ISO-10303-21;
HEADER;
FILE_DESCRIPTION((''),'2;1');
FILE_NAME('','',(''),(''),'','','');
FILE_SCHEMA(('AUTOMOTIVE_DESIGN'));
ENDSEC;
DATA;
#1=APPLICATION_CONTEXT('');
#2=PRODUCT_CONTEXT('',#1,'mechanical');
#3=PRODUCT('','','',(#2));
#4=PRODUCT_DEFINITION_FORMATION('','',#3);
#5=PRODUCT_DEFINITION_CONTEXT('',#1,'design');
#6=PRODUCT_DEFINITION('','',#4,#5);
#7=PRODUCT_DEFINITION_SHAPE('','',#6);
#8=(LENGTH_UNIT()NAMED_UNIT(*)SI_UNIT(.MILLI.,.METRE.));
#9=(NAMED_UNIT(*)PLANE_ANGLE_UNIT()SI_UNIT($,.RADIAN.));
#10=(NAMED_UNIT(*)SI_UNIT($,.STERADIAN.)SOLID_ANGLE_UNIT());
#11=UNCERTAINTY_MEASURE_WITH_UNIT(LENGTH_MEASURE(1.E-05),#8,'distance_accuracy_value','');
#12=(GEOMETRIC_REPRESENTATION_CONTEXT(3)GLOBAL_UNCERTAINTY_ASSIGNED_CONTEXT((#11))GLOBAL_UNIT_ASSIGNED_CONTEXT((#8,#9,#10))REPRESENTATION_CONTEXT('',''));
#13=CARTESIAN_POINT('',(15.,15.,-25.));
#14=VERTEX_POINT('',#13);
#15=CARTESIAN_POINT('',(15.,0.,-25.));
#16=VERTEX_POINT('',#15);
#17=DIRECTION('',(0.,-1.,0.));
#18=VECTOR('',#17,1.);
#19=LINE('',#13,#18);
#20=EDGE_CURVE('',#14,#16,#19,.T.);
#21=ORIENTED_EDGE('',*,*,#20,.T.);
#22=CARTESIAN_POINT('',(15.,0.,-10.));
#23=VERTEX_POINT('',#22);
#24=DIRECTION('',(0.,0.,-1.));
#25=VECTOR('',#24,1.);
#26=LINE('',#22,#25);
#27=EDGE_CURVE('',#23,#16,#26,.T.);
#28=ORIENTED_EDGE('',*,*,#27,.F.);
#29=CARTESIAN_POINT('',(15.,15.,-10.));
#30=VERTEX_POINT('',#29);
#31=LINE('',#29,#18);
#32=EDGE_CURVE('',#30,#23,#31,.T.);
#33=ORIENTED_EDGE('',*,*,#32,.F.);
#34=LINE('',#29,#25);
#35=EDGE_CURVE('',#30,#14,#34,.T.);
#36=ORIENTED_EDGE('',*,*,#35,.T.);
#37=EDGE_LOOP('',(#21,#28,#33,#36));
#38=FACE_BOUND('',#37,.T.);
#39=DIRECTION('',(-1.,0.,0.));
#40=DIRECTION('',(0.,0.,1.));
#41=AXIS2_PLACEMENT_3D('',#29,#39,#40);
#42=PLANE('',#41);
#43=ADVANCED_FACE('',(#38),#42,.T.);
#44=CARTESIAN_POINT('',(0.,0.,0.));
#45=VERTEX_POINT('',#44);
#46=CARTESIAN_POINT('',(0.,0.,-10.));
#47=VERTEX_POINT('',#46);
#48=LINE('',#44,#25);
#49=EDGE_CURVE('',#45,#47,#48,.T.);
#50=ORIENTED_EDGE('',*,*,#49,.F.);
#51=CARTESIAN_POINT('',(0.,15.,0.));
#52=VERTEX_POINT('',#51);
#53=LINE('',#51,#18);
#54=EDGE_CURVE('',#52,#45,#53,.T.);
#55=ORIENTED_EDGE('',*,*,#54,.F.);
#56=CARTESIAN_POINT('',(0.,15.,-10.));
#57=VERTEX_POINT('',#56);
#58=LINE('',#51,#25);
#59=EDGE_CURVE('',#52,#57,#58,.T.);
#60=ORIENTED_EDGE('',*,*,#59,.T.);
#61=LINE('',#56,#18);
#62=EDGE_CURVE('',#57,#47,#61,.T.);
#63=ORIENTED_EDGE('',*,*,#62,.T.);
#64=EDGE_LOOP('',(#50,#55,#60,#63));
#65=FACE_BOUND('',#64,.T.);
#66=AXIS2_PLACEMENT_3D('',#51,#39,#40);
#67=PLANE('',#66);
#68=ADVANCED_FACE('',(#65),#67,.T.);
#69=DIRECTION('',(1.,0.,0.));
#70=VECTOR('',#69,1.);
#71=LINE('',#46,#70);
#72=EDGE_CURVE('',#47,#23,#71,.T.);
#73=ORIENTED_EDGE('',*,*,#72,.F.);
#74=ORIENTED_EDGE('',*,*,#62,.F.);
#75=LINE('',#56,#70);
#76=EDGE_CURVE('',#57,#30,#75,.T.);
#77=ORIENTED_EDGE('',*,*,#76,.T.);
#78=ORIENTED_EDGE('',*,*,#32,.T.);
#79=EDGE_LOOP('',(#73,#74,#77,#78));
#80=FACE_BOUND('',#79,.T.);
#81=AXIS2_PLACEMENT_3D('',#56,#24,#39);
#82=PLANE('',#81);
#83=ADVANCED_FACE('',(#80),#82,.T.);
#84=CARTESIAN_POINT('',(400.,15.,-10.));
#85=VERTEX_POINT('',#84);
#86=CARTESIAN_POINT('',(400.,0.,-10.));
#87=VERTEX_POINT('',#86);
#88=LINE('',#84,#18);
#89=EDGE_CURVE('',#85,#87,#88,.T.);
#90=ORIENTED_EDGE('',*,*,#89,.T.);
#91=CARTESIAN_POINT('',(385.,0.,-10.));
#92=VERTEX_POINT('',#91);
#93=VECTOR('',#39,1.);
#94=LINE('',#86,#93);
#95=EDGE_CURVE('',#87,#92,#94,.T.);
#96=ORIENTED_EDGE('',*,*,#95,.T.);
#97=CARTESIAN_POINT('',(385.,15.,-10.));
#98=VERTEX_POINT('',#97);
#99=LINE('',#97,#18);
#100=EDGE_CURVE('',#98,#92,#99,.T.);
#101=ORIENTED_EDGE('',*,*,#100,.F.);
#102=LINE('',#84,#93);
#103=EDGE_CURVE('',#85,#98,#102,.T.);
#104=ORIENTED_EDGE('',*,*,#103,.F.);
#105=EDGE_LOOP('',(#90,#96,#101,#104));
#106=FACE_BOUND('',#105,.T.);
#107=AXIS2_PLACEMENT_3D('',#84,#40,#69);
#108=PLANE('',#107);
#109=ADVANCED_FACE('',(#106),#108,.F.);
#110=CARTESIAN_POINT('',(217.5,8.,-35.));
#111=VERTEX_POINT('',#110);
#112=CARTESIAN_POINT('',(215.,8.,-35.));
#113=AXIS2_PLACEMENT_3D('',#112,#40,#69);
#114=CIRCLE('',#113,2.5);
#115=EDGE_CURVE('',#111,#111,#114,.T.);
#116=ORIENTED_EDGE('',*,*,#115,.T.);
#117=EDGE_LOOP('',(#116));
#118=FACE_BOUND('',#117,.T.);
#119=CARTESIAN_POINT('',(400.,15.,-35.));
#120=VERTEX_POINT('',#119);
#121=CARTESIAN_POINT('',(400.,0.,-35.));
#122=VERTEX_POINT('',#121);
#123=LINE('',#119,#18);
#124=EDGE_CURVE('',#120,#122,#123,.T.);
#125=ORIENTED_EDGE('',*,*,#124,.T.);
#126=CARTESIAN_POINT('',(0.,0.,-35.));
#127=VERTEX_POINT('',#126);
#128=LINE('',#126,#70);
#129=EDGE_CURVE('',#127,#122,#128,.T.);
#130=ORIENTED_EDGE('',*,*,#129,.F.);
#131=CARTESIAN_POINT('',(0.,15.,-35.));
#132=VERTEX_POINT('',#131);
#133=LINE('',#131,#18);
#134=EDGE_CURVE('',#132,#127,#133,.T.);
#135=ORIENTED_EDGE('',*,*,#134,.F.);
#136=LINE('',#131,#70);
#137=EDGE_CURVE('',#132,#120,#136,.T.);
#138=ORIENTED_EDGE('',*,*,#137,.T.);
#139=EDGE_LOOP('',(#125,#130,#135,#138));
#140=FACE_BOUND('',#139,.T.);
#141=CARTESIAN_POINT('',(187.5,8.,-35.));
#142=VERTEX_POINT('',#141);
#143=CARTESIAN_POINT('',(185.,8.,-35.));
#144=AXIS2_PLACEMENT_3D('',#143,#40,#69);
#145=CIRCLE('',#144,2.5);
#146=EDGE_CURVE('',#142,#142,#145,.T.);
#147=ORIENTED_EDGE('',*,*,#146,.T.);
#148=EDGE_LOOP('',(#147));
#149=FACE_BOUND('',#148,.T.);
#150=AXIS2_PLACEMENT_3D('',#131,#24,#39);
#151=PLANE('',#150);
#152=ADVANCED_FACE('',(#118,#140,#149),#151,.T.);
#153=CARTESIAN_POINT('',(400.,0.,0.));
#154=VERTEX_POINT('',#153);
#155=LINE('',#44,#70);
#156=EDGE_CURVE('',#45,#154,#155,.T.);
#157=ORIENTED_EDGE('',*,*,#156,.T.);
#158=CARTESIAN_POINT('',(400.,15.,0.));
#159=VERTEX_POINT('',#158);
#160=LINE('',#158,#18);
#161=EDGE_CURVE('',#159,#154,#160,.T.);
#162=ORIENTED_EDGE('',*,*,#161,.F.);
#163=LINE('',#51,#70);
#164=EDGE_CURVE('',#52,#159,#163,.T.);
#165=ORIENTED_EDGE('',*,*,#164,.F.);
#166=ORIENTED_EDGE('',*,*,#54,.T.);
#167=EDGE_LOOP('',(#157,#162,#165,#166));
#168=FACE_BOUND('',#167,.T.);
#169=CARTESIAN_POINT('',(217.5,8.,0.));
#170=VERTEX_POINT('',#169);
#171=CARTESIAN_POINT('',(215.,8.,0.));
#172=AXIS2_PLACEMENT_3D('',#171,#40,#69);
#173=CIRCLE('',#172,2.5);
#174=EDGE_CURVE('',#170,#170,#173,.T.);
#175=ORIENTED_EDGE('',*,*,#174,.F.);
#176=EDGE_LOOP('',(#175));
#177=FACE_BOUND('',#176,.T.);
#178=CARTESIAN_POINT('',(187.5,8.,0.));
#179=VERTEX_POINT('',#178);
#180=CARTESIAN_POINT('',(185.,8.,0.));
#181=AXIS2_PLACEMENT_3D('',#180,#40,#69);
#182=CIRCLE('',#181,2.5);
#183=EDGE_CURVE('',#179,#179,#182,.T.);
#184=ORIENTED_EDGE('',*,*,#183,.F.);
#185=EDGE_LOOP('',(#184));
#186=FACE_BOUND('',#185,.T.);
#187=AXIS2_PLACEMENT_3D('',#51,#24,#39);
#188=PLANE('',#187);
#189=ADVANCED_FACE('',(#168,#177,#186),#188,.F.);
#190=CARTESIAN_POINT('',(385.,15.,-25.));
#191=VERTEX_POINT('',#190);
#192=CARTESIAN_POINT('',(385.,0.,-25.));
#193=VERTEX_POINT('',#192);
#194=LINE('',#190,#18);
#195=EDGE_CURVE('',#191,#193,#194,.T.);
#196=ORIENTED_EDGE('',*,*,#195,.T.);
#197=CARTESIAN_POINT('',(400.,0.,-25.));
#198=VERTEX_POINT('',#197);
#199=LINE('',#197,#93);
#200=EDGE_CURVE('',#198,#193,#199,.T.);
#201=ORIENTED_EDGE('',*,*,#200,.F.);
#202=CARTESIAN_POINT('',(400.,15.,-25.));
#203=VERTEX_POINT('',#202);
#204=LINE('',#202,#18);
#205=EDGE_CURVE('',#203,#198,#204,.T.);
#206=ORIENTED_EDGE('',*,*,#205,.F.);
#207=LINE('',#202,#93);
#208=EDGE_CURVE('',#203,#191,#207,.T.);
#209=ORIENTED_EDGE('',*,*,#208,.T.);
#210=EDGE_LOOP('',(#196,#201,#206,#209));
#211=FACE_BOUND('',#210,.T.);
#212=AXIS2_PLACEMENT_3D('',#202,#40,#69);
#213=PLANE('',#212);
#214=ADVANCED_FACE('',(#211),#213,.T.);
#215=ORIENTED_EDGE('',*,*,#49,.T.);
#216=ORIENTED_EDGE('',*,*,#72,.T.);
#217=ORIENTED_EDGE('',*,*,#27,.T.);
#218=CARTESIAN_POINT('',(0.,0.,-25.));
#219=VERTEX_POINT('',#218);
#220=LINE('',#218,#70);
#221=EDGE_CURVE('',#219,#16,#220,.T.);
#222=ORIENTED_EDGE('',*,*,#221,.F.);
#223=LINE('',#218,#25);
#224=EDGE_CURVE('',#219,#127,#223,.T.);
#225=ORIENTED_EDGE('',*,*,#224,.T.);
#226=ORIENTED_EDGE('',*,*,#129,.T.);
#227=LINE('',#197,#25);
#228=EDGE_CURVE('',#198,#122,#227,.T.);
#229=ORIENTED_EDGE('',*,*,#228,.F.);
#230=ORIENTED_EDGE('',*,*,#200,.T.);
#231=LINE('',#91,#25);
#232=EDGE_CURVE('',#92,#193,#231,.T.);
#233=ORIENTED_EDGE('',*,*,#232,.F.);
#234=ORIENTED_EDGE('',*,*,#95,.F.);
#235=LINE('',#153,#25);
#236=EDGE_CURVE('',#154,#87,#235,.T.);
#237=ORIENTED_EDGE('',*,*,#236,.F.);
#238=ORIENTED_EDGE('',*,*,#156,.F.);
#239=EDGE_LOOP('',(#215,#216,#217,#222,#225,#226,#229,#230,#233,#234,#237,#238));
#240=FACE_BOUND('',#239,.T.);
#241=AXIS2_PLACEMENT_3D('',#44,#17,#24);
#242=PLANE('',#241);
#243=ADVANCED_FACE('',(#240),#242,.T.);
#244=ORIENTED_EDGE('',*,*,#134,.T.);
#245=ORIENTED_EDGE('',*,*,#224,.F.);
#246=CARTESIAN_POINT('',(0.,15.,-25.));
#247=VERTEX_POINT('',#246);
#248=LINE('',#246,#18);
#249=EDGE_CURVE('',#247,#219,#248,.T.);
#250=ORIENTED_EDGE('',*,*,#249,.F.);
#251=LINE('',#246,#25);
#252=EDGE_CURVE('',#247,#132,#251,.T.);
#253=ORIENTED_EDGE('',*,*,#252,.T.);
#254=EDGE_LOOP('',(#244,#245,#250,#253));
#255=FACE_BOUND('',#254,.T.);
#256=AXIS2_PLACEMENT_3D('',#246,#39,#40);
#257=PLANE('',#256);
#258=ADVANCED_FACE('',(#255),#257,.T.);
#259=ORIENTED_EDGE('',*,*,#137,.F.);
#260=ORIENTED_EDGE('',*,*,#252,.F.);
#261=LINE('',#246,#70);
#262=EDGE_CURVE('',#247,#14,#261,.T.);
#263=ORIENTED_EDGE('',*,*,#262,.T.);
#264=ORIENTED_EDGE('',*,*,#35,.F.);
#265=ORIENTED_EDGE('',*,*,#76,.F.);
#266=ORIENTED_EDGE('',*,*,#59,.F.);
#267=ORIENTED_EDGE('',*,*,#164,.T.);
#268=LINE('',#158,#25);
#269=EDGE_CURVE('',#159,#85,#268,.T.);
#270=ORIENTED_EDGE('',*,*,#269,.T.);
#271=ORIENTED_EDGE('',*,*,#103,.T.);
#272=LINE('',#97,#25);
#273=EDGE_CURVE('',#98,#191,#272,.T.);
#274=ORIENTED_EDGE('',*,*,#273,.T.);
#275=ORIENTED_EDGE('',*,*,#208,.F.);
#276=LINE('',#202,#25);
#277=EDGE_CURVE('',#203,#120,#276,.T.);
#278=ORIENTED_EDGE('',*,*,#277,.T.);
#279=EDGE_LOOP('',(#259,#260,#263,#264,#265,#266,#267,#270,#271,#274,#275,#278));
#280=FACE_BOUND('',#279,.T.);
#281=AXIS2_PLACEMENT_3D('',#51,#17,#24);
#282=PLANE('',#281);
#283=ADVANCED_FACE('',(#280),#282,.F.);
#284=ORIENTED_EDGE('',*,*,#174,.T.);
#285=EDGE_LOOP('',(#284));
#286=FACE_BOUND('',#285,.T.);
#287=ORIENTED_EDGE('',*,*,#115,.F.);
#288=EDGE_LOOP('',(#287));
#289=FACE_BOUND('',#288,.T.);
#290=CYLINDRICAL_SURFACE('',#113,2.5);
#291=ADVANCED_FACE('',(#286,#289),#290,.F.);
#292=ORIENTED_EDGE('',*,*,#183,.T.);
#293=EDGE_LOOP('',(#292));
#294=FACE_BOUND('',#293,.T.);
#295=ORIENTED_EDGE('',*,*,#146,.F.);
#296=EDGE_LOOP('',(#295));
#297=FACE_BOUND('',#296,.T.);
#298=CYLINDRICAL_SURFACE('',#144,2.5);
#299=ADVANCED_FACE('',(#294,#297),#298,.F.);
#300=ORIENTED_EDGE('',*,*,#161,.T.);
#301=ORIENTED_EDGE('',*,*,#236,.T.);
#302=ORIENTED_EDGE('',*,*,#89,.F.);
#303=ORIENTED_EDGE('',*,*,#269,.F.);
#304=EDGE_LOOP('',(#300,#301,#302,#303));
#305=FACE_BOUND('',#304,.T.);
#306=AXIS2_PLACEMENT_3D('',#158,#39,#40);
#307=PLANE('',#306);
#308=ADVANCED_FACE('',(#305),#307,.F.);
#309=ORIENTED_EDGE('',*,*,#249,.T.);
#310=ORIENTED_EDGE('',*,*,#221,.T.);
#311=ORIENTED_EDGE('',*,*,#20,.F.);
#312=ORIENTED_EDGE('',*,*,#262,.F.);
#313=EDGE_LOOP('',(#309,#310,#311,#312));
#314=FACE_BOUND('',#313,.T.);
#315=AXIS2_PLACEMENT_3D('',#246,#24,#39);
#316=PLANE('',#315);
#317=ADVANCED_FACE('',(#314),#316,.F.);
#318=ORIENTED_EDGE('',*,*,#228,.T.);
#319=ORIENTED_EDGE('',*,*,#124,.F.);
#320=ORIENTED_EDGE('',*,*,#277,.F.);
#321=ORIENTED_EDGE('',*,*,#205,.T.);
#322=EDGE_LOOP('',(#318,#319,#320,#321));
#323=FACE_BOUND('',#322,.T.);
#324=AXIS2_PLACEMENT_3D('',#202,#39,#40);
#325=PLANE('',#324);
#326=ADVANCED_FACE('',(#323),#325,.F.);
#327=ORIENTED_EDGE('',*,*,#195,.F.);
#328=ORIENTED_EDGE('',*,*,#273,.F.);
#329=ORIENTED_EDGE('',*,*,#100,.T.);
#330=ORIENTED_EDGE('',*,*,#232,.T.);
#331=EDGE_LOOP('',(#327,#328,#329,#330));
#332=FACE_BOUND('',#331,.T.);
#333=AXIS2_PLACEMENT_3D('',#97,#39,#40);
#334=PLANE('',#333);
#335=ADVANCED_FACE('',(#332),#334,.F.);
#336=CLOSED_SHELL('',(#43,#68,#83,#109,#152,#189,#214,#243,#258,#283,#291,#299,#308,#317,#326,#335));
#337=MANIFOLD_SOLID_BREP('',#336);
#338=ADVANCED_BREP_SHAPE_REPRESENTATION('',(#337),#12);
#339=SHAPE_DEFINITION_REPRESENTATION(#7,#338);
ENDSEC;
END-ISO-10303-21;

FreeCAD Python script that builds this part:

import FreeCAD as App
import Part
import Sketcher

V = App.Vector
Q = App.Units.Quantity

doc = App.newDocument("Part")
body = doc.addObject("PartDesign::Body", "Body")

# Sketch on XZ plane
sketch1 = doc.addObject("Sketcher::SketchObject", "Sketch")
body.addObject(sketch1)
sketch1.AttachmentSupport = (doc.XZ_Plane, [""])
sketch1.MapMode = "FlatFace"
sketch1.addGeometry([
    Part.LineSegment(V(0, 0, 0), V(400, 0, 0)),  # 0
    Part.LineSegment(V(400, 0, 0), V(400, -10, 0)),  # 1
    Part.LineSegment(V(400, -10, 0), V(385, -10, 0)),  # 2
    Part.LineSegment(V(385, -10, 0), V(385, -25, 0)),  # 3
    Part.LineSegment(V(385, -25, 0), V(400, -25, 0)),  # 4
    Part.LineSegment(V(400, -25, 0), V(400, -35, 0)),  # 5
    Part.LineSegment(V(400, -35, 0), V(0, -35, 0)),  # 6
    Part.LineSegment(V(0, -35, 0), V(0, -25, 0)),  # 7
    Part.LineSegment(V(0, -25, 0), V(15, -25, 0)),  # 8
    Part.LineSegment(V(15, -25, 0), V(15, -10, 0)),  # 9
    Part.LineSegment(V(15, -10, 0), V(0, -10, 0)),  # 10
    Part.LineSegment(V(0, -10, 0), V(0, 0, 0)),  # 11
], False)
sketch1.addConstraint([
    Sketcher.Constraint("Coincident", 0, 2, 1, 1),
    Sketcher.Constraint("Coincident", 1, 2, 2, 1),
    Sketcher.Constraint("Coincident", 2, 2, 3, 1),
    Sketcher.Constraint("Coincident", 3, 2, 4, 1),
    Sketcher.Constraint("Coincident", 4, 2, 5, 1),
    Sketcher.Constraint("Coincident", 5, 2, 6, 1),
    Sketcher.Constraint("Coincident", 6, 2, 7, 1),
    Sketcher.Constraint("Coincident", 7, 2, 8, 1),
    Sketcher.Constraint("Coincident", 8, 2, 9, 1),
    Sketcher.Constraint("Coincident", 9, 2, 10, 1),
    Sketcher.Constraint("Coincident", 10, 2, 11, 1),
    Sketcher.Constraint("Coincident", 11, 2, 0, 1),
    Sketcher.Constraint("Horizontal", 0),
    Sketcher.Constraint("Vertical", 1),
    Sketcher.Constraint("Horizontal", 2),
    Sketcher.Constraint("Vertical", 3),
    Sketcher.Constraint("Horizontal", 4),
    Sketcher.Constraint("Vertical", 5),
    Sketcher.Constraint("Horizontal", 6),
    Sketcher.Constraint("Vertical", 7),
    Sketcher.Constraint("Horizontal", 8),
    Sketcher.Constraint("Vertical", 9),
    Sketcher.Constraint("Horizontal", 10),
    Sketcher.Constraint("Vertical", 11),
    Sketcher.Constraint("Coincident", 11, 2, -1, 1),
    Sketcher.Constraint("PointOnObject", 6, 2, -2),
    Sketcher.Constraint("Horizontal", 4, 2, 7, 2),
    Sketcher.Constraint("Horizontal", 2, 2, 9, 2),
    Sketcher.Constraint("Vertical", 1, 2, 4, 2),
    Sketcher.Constraint("Equal", 4, 8),
    Sketcher.Constraint("Equal", 10, 3),
    Sketcher.Constraint("Equal", 1, 5),
    Sketcher.Constraint("DistanceX", 0, 1, 0, 2, Q("400 mm")),
    Sketcher.Constraint("DistanceX", 2, 2, 2, 1, Q("15 mm")),
    Sketcher.Constraint("DistanceY", 1, 2, 1, 1, Q("10 mm")),
])
pad1 = doc.addObject("PartDesign::Pad", "Pad")
body.addObject(pad1)
pad1.Profile = sketch1
pad1.Length = 15
pad1.Reversed = True

# Sketch on XY plane
sketch2 = doc.addObject("Sketcher::SketchObject", "Sketch001")
body.addObject(sketch2)
sketch2.AttachmentSupport = (doc.XY_Plane, [""])
sketch2.MapMode = "FlatFace"
sketch2.addGeometry([
    Part.Circle(V(185, 8, 0), V(0, 0, 1), 2.5),
    Part.Circle(V(215, 8, 0), V(0, 0, 1), 2.5),
], False)
sketch2.addConstraint([
    Sketcher.Constraint("Equal", 0, 1),
    Sketcher.Constraint("Horizontal", 0, 3, 1, 3),
    Sketcher.Constraint("Diameter", 0, Q("5 mm")),
    Sketcher.Constraint("DistanceX", -1, 1, 0, 3, Q("185 mm")),
    Sketcher.Constraint("DistanceY", -1, 1, 0, 3, Q("8 mm")),
    Sketcher.Constraint("DistanceX", -1, 1, 1, 3, Q("215 mm")),
])
pocket1 = doc.addObject("PartDesign::Pocket", "Pocket")
body.addObject(pocket1)
pocket1.Profile = sketch2
pocket1.Length = 35

doc.recompute()
